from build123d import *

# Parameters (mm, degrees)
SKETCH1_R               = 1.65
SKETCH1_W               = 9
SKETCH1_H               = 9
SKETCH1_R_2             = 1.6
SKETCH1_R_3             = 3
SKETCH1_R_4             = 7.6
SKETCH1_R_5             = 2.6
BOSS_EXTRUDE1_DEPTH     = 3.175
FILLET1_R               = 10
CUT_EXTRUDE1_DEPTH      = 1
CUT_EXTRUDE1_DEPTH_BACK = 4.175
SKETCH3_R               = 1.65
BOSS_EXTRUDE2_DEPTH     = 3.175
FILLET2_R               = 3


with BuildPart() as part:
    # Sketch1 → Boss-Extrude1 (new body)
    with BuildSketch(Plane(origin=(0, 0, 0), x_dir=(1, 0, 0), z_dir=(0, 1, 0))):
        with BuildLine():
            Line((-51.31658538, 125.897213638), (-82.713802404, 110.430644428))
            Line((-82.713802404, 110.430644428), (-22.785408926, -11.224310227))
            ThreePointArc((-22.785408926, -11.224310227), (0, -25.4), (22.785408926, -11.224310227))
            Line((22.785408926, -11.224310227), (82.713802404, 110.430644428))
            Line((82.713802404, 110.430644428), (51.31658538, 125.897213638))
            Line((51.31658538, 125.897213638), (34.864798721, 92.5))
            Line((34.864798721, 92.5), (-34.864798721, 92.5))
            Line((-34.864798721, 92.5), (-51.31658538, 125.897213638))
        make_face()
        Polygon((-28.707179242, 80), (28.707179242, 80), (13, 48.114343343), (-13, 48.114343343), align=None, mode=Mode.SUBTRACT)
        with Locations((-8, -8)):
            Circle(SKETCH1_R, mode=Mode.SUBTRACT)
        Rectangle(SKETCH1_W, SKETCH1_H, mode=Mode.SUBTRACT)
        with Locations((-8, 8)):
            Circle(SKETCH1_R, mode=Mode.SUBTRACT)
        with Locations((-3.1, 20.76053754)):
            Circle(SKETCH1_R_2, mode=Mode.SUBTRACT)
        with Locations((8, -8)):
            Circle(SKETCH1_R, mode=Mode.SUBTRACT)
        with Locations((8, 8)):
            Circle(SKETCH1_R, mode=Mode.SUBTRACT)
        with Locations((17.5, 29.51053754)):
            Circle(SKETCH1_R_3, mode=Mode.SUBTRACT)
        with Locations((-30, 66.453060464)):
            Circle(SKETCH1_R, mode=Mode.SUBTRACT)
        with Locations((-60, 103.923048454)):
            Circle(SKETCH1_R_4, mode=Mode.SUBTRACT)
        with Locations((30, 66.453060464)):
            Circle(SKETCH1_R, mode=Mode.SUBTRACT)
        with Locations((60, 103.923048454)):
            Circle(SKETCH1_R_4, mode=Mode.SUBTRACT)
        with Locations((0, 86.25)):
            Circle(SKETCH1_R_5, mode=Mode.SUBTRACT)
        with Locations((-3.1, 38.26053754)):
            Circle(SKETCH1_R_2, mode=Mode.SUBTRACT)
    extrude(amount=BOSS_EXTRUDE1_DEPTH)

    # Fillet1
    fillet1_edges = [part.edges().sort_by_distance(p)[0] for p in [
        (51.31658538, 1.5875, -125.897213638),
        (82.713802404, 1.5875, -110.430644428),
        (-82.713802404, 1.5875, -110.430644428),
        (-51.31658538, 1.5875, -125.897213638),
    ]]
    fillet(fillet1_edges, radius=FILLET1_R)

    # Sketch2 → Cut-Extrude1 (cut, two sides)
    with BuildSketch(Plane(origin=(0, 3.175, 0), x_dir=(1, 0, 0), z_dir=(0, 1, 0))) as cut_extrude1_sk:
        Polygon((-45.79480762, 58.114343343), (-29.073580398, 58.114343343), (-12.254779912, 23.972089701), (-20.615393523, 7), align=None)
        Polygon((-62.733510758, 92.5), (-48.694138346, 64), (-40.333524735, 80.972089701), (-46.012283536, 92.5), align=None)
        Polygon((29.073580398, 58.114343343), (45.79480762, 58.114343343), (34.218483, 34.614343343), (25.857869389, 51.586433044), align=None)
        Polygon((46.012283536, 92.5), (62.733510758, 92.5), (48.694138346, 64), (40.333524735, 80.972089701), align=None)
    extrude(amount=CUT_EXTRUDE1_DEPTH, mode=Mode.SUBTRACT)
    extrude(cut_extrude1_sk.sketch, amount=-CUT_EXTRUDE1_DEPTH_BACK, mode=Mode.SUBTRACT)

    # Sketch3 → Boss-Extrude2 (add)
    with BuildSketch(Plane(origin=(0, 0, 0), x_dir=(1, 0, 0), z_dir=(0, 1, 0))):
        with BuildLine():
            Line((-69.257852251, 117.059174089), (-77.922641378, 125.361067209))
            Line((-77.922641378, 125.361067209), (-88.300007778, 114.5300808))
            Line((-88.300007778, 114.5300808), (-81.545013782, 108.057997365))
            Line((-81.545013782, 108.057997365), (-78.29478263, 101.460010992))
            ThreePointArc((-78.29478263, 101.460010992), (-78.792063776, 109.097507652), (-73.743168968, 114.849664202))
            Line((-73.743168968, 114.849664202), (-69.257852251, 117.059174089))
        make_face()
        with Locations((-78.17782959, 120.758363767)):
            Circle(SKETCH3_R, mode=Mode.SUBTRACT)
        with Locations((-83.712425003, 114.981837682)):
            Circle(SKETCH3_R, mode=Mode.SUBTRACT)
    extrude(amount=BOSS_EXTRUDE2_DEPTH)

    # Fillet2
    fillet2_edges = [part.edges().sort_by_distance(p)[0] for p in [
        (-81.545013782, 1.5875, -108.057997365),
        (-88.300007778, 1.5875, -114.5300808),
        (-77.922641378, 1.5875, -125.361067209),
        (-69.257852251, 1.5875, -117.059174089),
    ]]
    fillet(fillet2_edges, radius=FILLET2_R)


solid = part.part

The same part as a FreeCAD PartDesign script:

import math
import FreeCAD as App
import Part
import Sketcher
from FreeCAD import Vector


def edges_at(feature, points):
    """Names of the edges that pass closest to the given points."""
    edges = feature.Shape.Edges
    near = lambda p: min(range(len(edges)), key=lambda i: edges[i].distToShape(Part.Vertex(*p))[0])
    return sorted({f"Edge{near(p) + 1}" for p in points})

doc = App.newDocument("Part")
params = doc.addObject("Spreadsheet::Sheet", "Params")
for row, (alias, value) in enumerate([
    ("sketch1_diameter", "6 mm"),
    ("sketch1_diameter2", "3.3 mm"),
    ("sketch1_diameter3", "3.2 mm"),
    ("sketch1_diameter4", "15.2 mm"),
    ("sketch1_diameter5", "5.2 mm"),
    ("pad1_length", "3.175 mm"),
    ("fillet_radius", "10 mm"),
    ("sketch3_radius", "10 mm"),
    ("sketch3_diameter", "3.3 mm"),
    ("sketch3_length", "12 mm"),
    ("sketch3_length2", "15 mm"),
    ("sketch3_length3", "5 mm"),
    ("pad2_length", "3.175 mm"),
    ("fillet2_radius", "3 mm"),
], start=1):
    params.set(f"A{row}", alias)
    params.set(f"B{row}", "=" + value)
    params.setAlias(f"B{row}", alias)

body = doc.addObject("PartDesign::Body", "Body")

# Sketch on XZ plane
sketch1 = doc.addObject("Sketcher::SketchObject", "Sketch")
body.addObject(sketch1)
sketch1.AttachmentSupport = (doc.XZ_Plane, [""])
sketch1.MapMode = "FlatFace"
sketch1.addGeometry(Part.LineSegment(Vector(-51.3, -125.9, 0), Vector(-82.7, -110.4, 0)), False)
sketch1.addGeometry(Part.LineSegment(Vector(-82.7, -110.4, 0), Vector(-22.8, 11.2, 0)), False)
sketch1.addGeometry(Part.ArcOfCircle(Part.Circle(Vector(0, 0, 0), Vector(0, 0, 1), 25.4), math.radians(26), math.radians(154)), False)
sketch1.addGeometry(Part.LineSegment(Vector(22.8, 11.2, 0), Vector(82.7, -110.4, 0)), False)
sketch1.addGeometry(Part.LineSegment(Vector(82.7, -110.4, 0), Vector(51.3, -125.9, 0)), False)
sketch1.addGeometry(Part.LineSegment(Vector(51.3, -125.9, 0), Vector(34.9, -92.5, 0)), False)
sketch1.addGeometry(Part.LineSegment(Vector(34.9, -92.5, 0), Vector(-34.9, -92.5, 0)), False)
sketch1.addGeometry(Part.LineSegment(Vector(-34.9, -92.5, 0), Vector(-51.3, -125.9, 0)), False)
sketch1.addGeometry(Part.Circle(Vector(-8, 8, 0), Vector(0, 0, 1), 1.6), False)
sketch1.addGeometry(Part.Circle(Vector(-8, -8, 0), Vector(0, 0, 1), 1.6), False)
sketch1.addGeometry(Part.Circle(Vector(-3.1, -20.8, 0), Vector(0, 0, 1), 1.6), False)
sketch1.addGeometry(Part.Circle(Vector(-3.1, -38.3, 0), Vector(0, 0, 1), 1.6), False)
sketch1.addGeometry(Part.Circle(Vector(8, 8, 0), Vector(0, 0, 1), 1.6), False)
sketch1.addGeometry(Part.LineSegment(Vector(4.5, 4.5, 0), Vector(-4.5, 4.5, 0)), False)
sketch1.addGeometry(Part.LineSegment(Vector(-4.5, 4.5, 0), Vector(-4.5, -4.5, 0)), False)
sketch1.addGeometry(Part.LineSegment(Vector(-4.5, -4.5, 0), Vector(4.5, -4.5, 0)), False)
sketch1.addGeometry(Part.LineSegment(Vector(4.5, -4.5, 0), Vector(4.5, 4.5, 0)), False)
sketch1.addGeometry(Part.Circle(Vector(8, -8, 0), Vector(0, 0, 1), 1.6), False)
sketch1.addGeometry(Part.Circle(Vector(17.5, -29.5, 0), Vector(0, 0, 1), 3), False)
sketch1.addGeometry(Part.Circle(Vector(-30, -66.5, 0), Vector(0, 0, 1), 1.6), False)
sketch1.addGeometry(Part.Circle(Vector(-60, -103.9, 0), Vector(0, 0, 1), 7.6), False)
sketch1.addGeometry(Part.LineSegment(Vector(-13, -48.1, 0), Vector(-28.7, -80, 0)), False)
sketch1.addGeometry(Part.LineSegment(Vector(-28.7, -80, 0), Vector(28.7, -80, 0)), False)
sketch1.addGeometry(Part.LineSegment(Vector(28.7, -80, 0), Vector(13, -48.1, 0)), False)
sketch1.addGeometry(Part.LineSegment(Vector(13, -48.1, 0), Vector(-13, -48.1, 0)), False)
sketch1.addGeometry(Part.Circle(Vector(30, -66.5, 0), Vector(0, 0, 1), 1.6), False)
sketch1.addGeometry(Part.Circle(Vector(0, -86.2, 0), Vector(0, 0, 1), 2.6), False)
sketch1.addGeometry(Part.Circle(Vector(60, -103.9, 0), Vector(0, 0, 1), 7.6), False)
sketch1.addConstraint(Sketcher.Constraint("Coincident", 0, 2, 1, 1))
sketch1.addConstraint(Sketcher.Constraint("Tangent", 1, 2, 2, 2))
sketch1.addConstraint(Sketcher.Constraint("Tangent", 2, 1, 3, 1))
sketch1.addConstraint(Sketcher.Constraint("Coincident", 3, 2, 4, 1))
sketch1.addConstraint(Sketcher.Constraint("Coincident", 4, 2, 5, 1))
sketch1.addConstraint(Sketcher.Constraint("Coincident", 5, 2, 6, 1))
sketch1.addConstraint(Sketcher.Constraint("Coincident", 6, 2, 7, 1))
sketch1.addConstraint(Sketcher.Constraint("Coincident", 7, 2, 0, 1))
sketch1.addConstraint(Sketcher.Constraint("Coincident", 13, 2, 14, 1))
sketch1.addConstraint(Sketcher.Constraint("Coincident", 14, 2, 15, 1))
sketch1.addConstraint(Sketcher.Constraint("Coincident", 15, 2, 16, 1))
sketch1.addConstraint(Sketcher.Constraint("Coincident", 16, 2, 13, 1))
sketch1.addConstraint(Sketcher.Constraint("Coincident", 21, 2, 22, 1))
sketch1.addConstraint(Sketcher.Constraint("Coincident", 22, 2, 23, 1))
sketch1.addConstraint(Sketcher.Constraint("Coincident", 23, 2, 24, 1))
sketch1.addConstraint(Sketcher.Constraint("Coincident", 24, 2, 21, 1))
sketch1.addConstraint(Sketcher.Constraint("Horizontal", 6))
sketch1.addConstraint(Sketcher.Constraint("Horizontal", 13))
sketch1.addConstraint(Sketcher.Constraint("Vertical", 14))
sketch1.addConstraint(Sketcher.Constraint("Horizontal", 15))
sketch1.addConstraint(Sketcher.Constraint("Vertical", 16))
sketch1.addConstraint(Sketcher.Constraint("Horizontal", 22))
sketch1.addConstraint(Sketcher.Constraint("Horizontal", 24))
sketch1.addConstraint(Sketcher.Constraint("Coincident", 2, 3, -1, 1))
sketch1.addConstraint(Sketcher.Constraint("Equal", 8, 9))
sketch1.addConstraint(Sketcher.Constraint("Equal", 10, 11))
sketch1.addConstraint(Sketcher.Constraint("Equal", 9, 12))
sketch1.addConstraint(Sketcher.Constraint("Equal", 12, 17))
sketch1.addConstraint(Sketcher.Constraint("Equal", 17, 19))
sketch1.addConstraint(Sketcher.Constraint("Equal", 19, 25))
sketch1.addConstraint(Sketcher.Constraint("Equal", 20, 27))
sketch1.addConstraint(Sketcher.Constraint("Symmetric", 9, 3, 12, 3, -1, 1))
sketch1.addConstraint(Sketcher.Constraint("Symmetric", 8, 3, 17, 3, -1, 1))
sketch1.addConstraint(Sketcher.Constraint("Symmetric", 13, 2, 15, 2, -1, 1))
sketch1.addConstraint(Sketcher.Constraint("Symmetric", 8, 3, 12, 3, -2))
sketch1.addConstraint(Sketcher.Constraint("Symmetric", 19, 3, 25, 3, -2))
sketch1.addConstraint(Sketcher.Constraint("Symmetric", 20, 3, 27, 3, -2))
sketch1.addConstraint(Sketcher.Constraint("Symmetric", 0, 2, 3, 2, -2))
sketch1.addConstraint(Sketcher.Constraint("Symmetric", 4, 2, 7, 2, -2))
sketch1.addConstraint(Sketcher.Constraint("PointOnObject", 26, 3, -2))
sketch1.addConstraint(Sketcher.Constraint("Perpendicular", 0, 1))
sketch1.addConstraint(Sketcher.Constraint("Perpendicular", 4, 5))
sketch1.addConstraint(Sketcher.Constraint("Parallel", 1, 7))
sketch1.addConstraint(Sketcher.Constraint("Parallel", 7, 21))
sketch1.addConstraint(Sketcher.Constraint("Parallel", 5, 23))
sketch1.addConstraint(Sketcher.Constraint("Vertical", 10, 3, 11, 3))
sketch1.addConstraint(Sketcher.Constraint("Equal", 15, 14))
sketch1.addConstraint(Sketcher.Constraint("Diameter", 18, 6.0))
sketch1.addConstraint(Sketcher.Constraint("Diameter", 8, 3.3))
sketch1.addConstraint(Sketcher.Constraint("Diameter", 10, 3.2))
sketch1.addConstraint(Sketcher.Constraint("Diameter", 20, 15.2))
sketch1.addConstraint(Sketcher.Constraint("Diameter", 26, 5.2))
sketch1.addConstraint(Sketcher.Constraint("Radius", 2, 25.4))
sketch1.addConstraint(Sketcher.Constraint("DistanceX", 13, 2, 13, 1, 9.0))
sketch1.addConstraint(Sketcher.Constraint("DistanceX", 24, 2, 24, 1, 26.0))
sketch1.addConstraint(Sketcher.Constraint("Distance", 0, 35.0))
sketch1.addConstraint(Sketcher.Constraint("DistanceX", 8, 3, -1, 1, 8.0))
sketch1.addConstraint(Sketcher.Constraint("DistanceY", -1, 1, 8, 3, 8.0))
sketch1.addConstraint(Sketcher.Constraint("DistanceX", 19, 3, -1, 1, 30.0))
sketch1.addConstraint(Sketcher.Constraint("DistanceX", 20, 3, -1, 1, 60.0))
sketch1.addConstraint(Sketcher.Constraint("DistanceY", 21, 2, -1, 1, 80.0))
sketch1.addConstraint(Sketcher.Constraint("DistanceX", -1, 1, 23, 2, 13.0))
sketch1.addConstraint(Sketcher.Constraint("DistanceX", 10, 3, -1, 1, 3.1))
sketch1.addConstraint(Sketcher.Constraint("DistanceX", -1, 1, 18, 3, 17.5))
sketch1.addConstraint(Sketcher.Constraint("DistanceY", 5, 2, -1, 1, 92.5))
sketch1.addConstraint(Sketcher.Constraint("DistanceY", 11, 3, 10, 3, 17.5))
sketch1.addConstraint(Sketcher.Constraint("DistanceY", 26, 3, -1, 1, 86.25))
sketch1.addConstraint(Sketcher.Constraint("DistanceY", 18, 3, 10, 3, 8.75))
sketch1.addConstraint(Sketcher.Constraint("DistanceX", 22, 1, 22, 2, 57.414358))
sketch1.addConstraint(Sketcher.Constraint("DistanceX", -1, 1, 5, 2, 34.864799))
sketch1.addConstraint(Sketcher.Constraint("DistanceY", 19, 3, -1, 1, 66.45306))
sketch1.addConstraint(Sketcher.Constraint("DistanceY", 20, 3, -1, 1, 103.923048))
sketch1.addConstraint(Sketcher.Constraint("DistanceY", 20, 3, 11, 3, 65.662511))
sketch1.addConstraint(Sketcher.Constraint("Distance", 1, 135.614676))
sketch1.setExpression("Constraints[47]", "Params.sketch1_diameter")
sketch1.setExpression("Constraints[48]", "Params.sketch1_diameter2")
sketch1.setExpression("Constraints[49]", "Params.sketch1_diameter3")
sketch1.setExpression("Constraints[50]", "Params.sketch1_diameter4")
sketch1.setExpression("Constraints[51]", "Params.sketch1_diameter5")
pad1 = doc.addObject("PartDesign::Pad", "Pad")
body.addObject(pad1)
pad1.Profile = sketch1
pad1.setExpression("Length", "Params.pad1_length")
pad1.Reversed = True
doc.recompute()

fillet = doc.addObject("PartDesign::Fillet", "Fillet")
body.addObject(fillet)
fillet.Base = (pad1, edges_at(pad1, [
    (51.317, 1.587, -125.897),
    (82.714, 1.587, -110.431),
    (-82.714, 1.587, -110.431),
    (-51.317, 1.587, -125.897),
]))
fillet.setExpression("Radius", "Params.fillet_radius")

# Sketch on XZ plane
sketch2 = doc.addObject("Sketcher::SketchObject", "Sketch001")
body.addObject(sketch2)
sketch2.AttachmentSupport = (doc.XZ_Plane, [""])
sketch2.MapMode = "FlatFace"
sketch2.AttachmentOffset = App.Placement(Vector(0, 0, -3.175), App.Rotation())
sketch2.addGeometry(Part.LineSegment(Vector(-29, -58, 0), Vector(-46, -58, 0)), False)
sketch2.addGeometry(Part.LineSegment(Vector(-46, -58, 0), Vector(-21, -7, 0)), False)
sketch2.addGeometry(Part.LineSegment(Vector(-21, -7, 0), Vector(-12, -24, 0)), False)
sketch2.addGeometry(Part.LineSegment(Vector(-12, -24, 0), Vector(-29, -58, 0)), False)
sketch2.addGeometry(Part.LineSegment(Vector(-63, -92, 0), Vector(-49, -64, 0)), False)
sketch2.addGeometry(Part.LineSegment(Vector(-49, -64, 0), Vector(-40, -81, 0)), False)
sketch2.addGeometry(Part.LineSegment(Vector(-40, -81, 0), Vector(-46, -92, 0)), False)
sketch2.addGeometry(Part.LineSegment(Vector(-46, -92, 0), Vector(-63, -92, 0)), False)
sketch2.addGeometry(Part.LineSegment(Vector(46, -58, 0), Vector(29, -58, 0)), False)
sketch2.addGeometry(Part.LineSegment(Vector(29, -58, 0), Vector(26, -52, 0)), False)
sketch2.addGeometry(Part.LineSegment(Vector(26, -52, 0), Vector(34, -35, 0)), False)
sketch2.addGeometry(Part.LineSegment(Vector(34, -35, 0), Vector(46, -58, 0)), False)
sketch2.addGeometry(Part.LineSegment(Vector(63, -92, 0), Vector(46, -92, 0)), False)
sketch2.addGeometry(Part.LineSegment(Vector(46, -92, 0), Vector(40, -81, 0)), False)
sketch2.addGeometry(Part.LineSegment(Vector(40, -81, 0), Vector(49, -64, 0)), False)
sketch2.addGeometry(Part.LineSegment(Vector(49, -64, 0), Vector(63, -92, 0)), False)
sketch2.addConstraint(Sketcher.Constraint("Coincident", 0, 2, 1, 1))
sketch2.addConstraint(Sketcher.Constraint("Coincident", 1, 2, 2, 1))
sketch2.addConstraint(Sketcher.Constraint("Coincident", 2, 2, 3, 1))
sketch2.addConstraint(Sketcher.Constraint("Coincident", 3, 2, 0, 1))
sketch2.addConstraint(Sketcher.Constraint("Coincident", 4, 2, 5, 1))
sketch2.addConstraint(Sketcher.Constraint("Coincident", 5, 2, 6, 1))
sketch2.addConstraint(Sketcher.Constraint("Coincident", 6, 2, 7, 1))
sketch2.addConstraint(Sketcher.Constraint("Coincident", 7, 2, 4, 1))
sketch2.addConstraint(Sketcher.Constraint("Coincident", 8, 2, 9, 1))
sketch2.addConstraint(Sketcher.Constraint("Coincident", 9, 2, 10, 1))
sketch2.addConstraint(Sketcher.Constraint("Coincident", 10, 2, 11, 1))
sketch2.addConstraint(Sketcher.Constraint("Coincident", 11, 2, 8, 1))
sketch2.addConstraint(Sketcher.Constraint("Coincident", 12, 2, 13, 1))
sketch2.addConstraint(Sketcher.Constraint("Coincident", 13, 2, 14, 1))
sketch2.addConstraint(Sketcher.Constraint("Coincident", 14, 2, 15, 1))
sketch2.addConstraint(Sketcher.Constraint("Coincident", 15, 2, 12, 1))
sketch2.addConstraint(Sketcher.Constraint("Horizontal", 0))
sketch2.addConstraint(Sketcher.Constraint("Horizontal", 7))
sketch2.addConstraint(Sketcher.Constraint("Horizontal", 8))
sketch2.addConstraint(Sketcher.Constraint("Horizontal", 12))
sketch2.addConstraint(Sketcher.Constraint("Symmetric", 3, 2, 8, 2, -2))
sketch2.addConstraint(Sketcher.Constraint("Symmetric", 6, 2, 12, 2, -2))
sketch2.addConstraint(Sketcher.Constraint("Symmetric", 5, 2, 13, 2, -2))
sketch2.addConstraint(Sketcher.Constraint("Symmetric", 4, 2, 14, 2, -2))
sketch2.addConstraint(Sketcher.Constraint("Parallel", 1, 3))
sketch2.addConstraint(Sketcher.Constraint("Parallel", 3, 4))
sketch2.addConstraint(Sketcher.Constraint("Parallel", 2, 5))
sketch2.addConstraint(Sketcher.Constraint("Parallel", 4, 6))
sketch2.addConstraint(Sketcher.Constraint("Parallel", 5, 9))
sketch2.addConstraint(Sketcher.Constraint("Parallel", 6, 10))
sketch2.addConstraint(Sketcher.Constraint("Parallel", 9, 11))
sketch2.addConstraint(Sketcher.Constraint("Parallel", 11, 13))
sketch2.addConstraint(Sketcher.Constraint("Parallel", 13, 15))
sketch2.addConstraint(Sketcher.Constraint("Equal", 0, 7))
sketch2.addConstraint(Sketcher.Constraint("Equal", 7, 8))
sketch2.addConstraint(Sketcher.Constraint("DistanceY", 1, 2, -1, 1, 7.0))
sketch2.addConstraint(Sketcher.Constraint("DistanceY", 4, 2, -1, 1, 64.0))
sketch2.addConstraint(Sketcher.Constraint("DistanceY", 6, 2, -1, 1, 92.5))
sketch2.addConstraint(Sketcher.Constraint("DistanceY", 8, 2, 10, 2, 23.5))
sketch2.addConstraint(Sketcher.Constraint("DistanceX", 3, 2, 2, 2, 16.8188))
sketch2.addConstraint(Sketcher.Constraint("DistanceX", 10, 2, 12, 2, 11.793801))
sketch2.addConstraint(Sketcher.Constraint("Distance", 2, 18.919611))
sketch2.addConstraint(Sketcher.Constraint("Distance", 4, 31.770332))
sketch2.addConstraint(Sketcher.Constraint("DistanceX", 2, 2, -1, 1, 12.25478))
pocket1 = doc.addObject("PartDesign::Pocket", "Pocket")
body.addObject(pocket1)
pocket1.Profile = sketch2
pocket1.Type = "ThroughAll"
pocket1.Midplane = True

# Sketch on XZ plane
sketch3 = doc.addObject("Sketcher::SketchObject", "Sketch002")
body.addObject(sketch3)
sketch3.AttachmentSupport = (doc.XZ_Plane, [""])
sketch3.MapMode = "FlatFace"
sketch3.addGeometry(Part.LineSegment(Vector(-69.3, -117.1, 0), Vector(-77.9, -125.4, 0)), False)
sketch3.addGeometry(Part.LineSegment(Vector(-77.9, -125.4, 0), Vector(-88.3, -114.5, 0)), False)
sketch3.addGeometry(Part.LineSegment(Vector(-88.3, -114.5, 0), Vector(-81.5, -108.1, 0)), False)
sketch3.addGeometry(Part.LineSegment(Vector(-81.5, -108.1, 0), Vector(-78.3, -101.5, 0)), False)
sketch3.addGeometry(Part.ArcOfCircle(Part.Circle(Vector(-69.3, -105.9, 0), Vector(0, 0, 1), 10), math.radians(154), math.radians(244)), False)
sketch3.addGeometry(Part.LineSegment(Vector(-73.7, -114.8, 0), Vector(-69.3, -117.1, 0)), False)
sketch3.addGeometry(Part.Circle(Vector(-83.7, -115, 0), Vector(0, 0, 1), 1.6), False)
sketch3.addGeometry(Part.Circle(Vector(-78.2, -120.8, 0), Vector(0, 0, 1), 1.6), False)
sketch3.addConstraint(Sketcher.Constraint("Coincident", 0, 2, 1, 1))
sketch3.addConstraint(Sketcher.Constraint("Coincident", 1, 2, 2, 1))
sketch3.addConstraint(Sketcher.Constraint("Coincident", 2, 2, 3, 1))
sketch3.addConstraint(Sketcher.Constraint("Tangent", 3, 2, 4, 1))
sketch3.addConstraint(Sketcher.Constraint("Tangent", 4, 2, 5, 1))
sketch3.addConstraint(Sketcher.Constraint("Coincident", 5, 2, 0, 1))
sketch3.addConstraint(Sketcher.Constraint("Equal", 6, 7))
sketch3.addConstraint(Sketcher.Constraint("Perpendicular", 0, 1))
sketch3.addConstraint(Sketcher.Constraint("Perpendicular", 1, 2))
sketch3.addConstraint(Sketcher.Constraint("Perpendicular", 3, 5))
sketch3.addConstraint(Sketcher.Constraint("Radius", 4, 10.0))
sketch3.addConstraint(Sketcher.Constraint("Diameter", 6, 3.3))
sketch3.addConstraint(Sketcher.Constraint("Distance", 0, 12.0))
sketch3.addConstraint(Sketcher.Constraint("Distance", 1, 15.0))
sketch3.addConstraint(Sketcher.Constraint("Distance", 5, 5.0))
sketch3.addConstraint(Sketcher.Constraint("DistanceY", 7, 3, 4, 2, 5.9087))
sketch3.addConstraint(Sketcher.Constraint("DistanceX", 4, 3, -1, 1, 69.324149))
sketch3.addConstraint(Sketcher.Constraint("DistanceY", 4, 3, -1, 1, 105.879031))
sketch3.addConstraint(Sketcher.Constraint("DistanceX", 7, 3, -1, 1, 78.17783))
sketch3.addConstraint(Sketcher.Constraint("DistanceX", 0, 2, -1, 1, 77.922641))
sketch3.addConstraint(Sketcher.Constraint("DistanceY", 1, 2, -1, 1, 114.530081))
sketch3.addConstraint(Sketcher.Constraint("DistanceY", 0, 2, 6, 3, 10.37923))
sketch3.addConstraint(Sketcher.Constraint("DistanceX", 6, 3, 2, 2, 2.167411))
sketch3.setExpression("Constraints[10]", "Params.sketch3_radius")
sketch3.setExpression("Constraints[11]", "Params.sketch3_diameter")
sketch3.setExpression("Constraints[12]", "Params.sketch3_length")
sketch3.setExpression("Constraints[13]", "Params.sketch3_length2")
sketch3.setExpression("Constraints[14]", "Params.sketch3_length3")
pad2 = doc.addObject("PartDesign::Pad", "Pad001")
body.addObject(pad2)
pad2.Profile = sketch3
pad2.setExpression("Length", "Params.pad2_length")
pad2.Reversed = True
doc.recompute()

fillet2 = doc.addObject("PartDesign::Fillet", "Fillet001")
body.addObject(fillet2)
fillet2.Base = (pad2, edges_at(pad2, [
    (-81.545, 1.587, -108.058),
    (-88.3, 1.587, -114.53),
    (-77.923, 1.587, -125.361),
    (-69.258, 1.587, -117.059),
]))
fillet2.setExpression("Radius", "Params.fillet2_radius")

doc.recompute()
